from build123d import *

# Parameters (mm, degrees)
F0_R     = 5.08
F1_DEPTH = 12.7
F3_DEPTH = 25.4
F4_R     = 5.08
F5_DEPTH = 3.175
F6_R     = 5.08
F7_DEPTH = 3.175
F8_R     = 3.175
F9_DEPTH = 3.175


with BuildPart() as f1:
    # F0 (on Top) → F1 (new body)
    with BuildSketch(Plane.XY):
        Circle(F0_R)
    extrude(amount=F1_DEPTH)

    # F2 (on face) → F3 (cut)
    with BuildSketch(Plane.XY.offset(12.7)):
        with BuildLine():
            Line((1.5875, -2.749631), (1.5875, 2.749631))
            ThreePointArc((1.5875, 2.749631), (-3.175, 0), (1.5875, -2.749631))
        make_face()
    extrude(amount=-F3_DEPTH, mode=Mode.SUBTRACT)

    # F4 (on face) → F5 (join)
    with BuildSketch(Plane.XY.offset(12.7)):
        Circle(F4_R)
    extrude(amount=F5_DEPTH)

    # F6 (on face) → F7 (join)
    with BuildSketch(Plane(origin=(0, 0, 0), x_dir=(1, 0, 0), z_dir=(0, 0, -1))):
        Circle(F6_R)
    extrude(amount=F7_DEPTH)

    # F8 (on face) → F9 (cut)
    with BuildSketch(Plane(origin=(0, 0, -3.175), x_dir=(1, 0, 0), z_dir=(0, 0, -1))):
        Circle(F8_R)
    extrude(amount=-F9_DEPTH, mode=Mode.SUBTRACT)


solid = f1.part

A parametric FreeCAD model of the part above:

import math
import FreeCAD as App
import Part
import Sketcher
Q = App.Units.Quantity

doc = App.newDocument("Part")
params = doc.addObject("Spreadsheet::Sheet", "Params")
for row, (alias, value) in enumerate([
    ("sketch1_diameter", "0.4 in"),
    ("pad1_length", "0.5 in"),
    ("sketch2_radius", "0.125 in"),
    ("pocket1_length", "1 in"),
    ("sketch3_diameter", "0.4 in"),
    ("pad2_length", "0.125 in"),
    ("sketch4_diameter", "0.4 in"),
    ("pad3_length", "0.125 in"),
    ("sketch5_diameter", "0.25 in"),
    ("pocket2_length", "0.125 in"),
], start=1):
    params.set(f"A{row}", alias)
    params.set(f"B{row}", "=" + value)
    params.setAlias(f"B{row}", alias)

body = doc.addObject("PartDesign::Body", "Body")

# Sketch on XY plane
sketch1 = body.newObject("Sketcher::SketchObject", "Sketch")
sketch1.AttachmentSupport = (doc.getObject("XY_Plane"), [""])
sketch1.MapMode = "FlatFace"
sketch1.addGeometry(Part.Circle(App.Vector(0, 0, 0), App.Vector(0, 0, 1), 5), False)
sketch1.addConstraint(Sketcher.Constraint("Coincident", 0, 3, -1, 1))
sketch1.addConstraint(Sketcher.Constraint("Diameter", 0, Q("0.4 in")))
sketch1.setExpression("Constraints[1]", "Params.sketch1_diameter")
pad1 = body.newObject("PartDesign::Pad", "Pad")
pad1.Profile = sketch1
pad1.setExpression("Length", "Params.pad1_length")

# Sketch on XY plane
sketch2 = body.newObject("Sketcher::SketchObject", "Sketch001")
sketch2.AttachmentSupport = (doc.getObject("XY_Plane"), [""])
sketch2.MapMode = "FlatFace"
sketch2.AttachmentOffset = App.Placement(App.Vector(0, 0, 0.5 * 25.4), App.Rotation())
sketch2.addGeometry(Part.LineSegment(App.Vector(1.6, -2.7, 0), App.Vector(1.6, 2.7, 0)), False)
sketch2.addGeometry(Part.ArcOfCircle(Part.Circle(App.Vector(0, 0, 0), App.Vector(0, 0, 1), 3.2), math.radians(60), math.radians(300)), False)
sketch2.addConstraint(Sketcher.Constraint("Coincident", 0, 1, 1, 2))
sketch2.addConstraint(Sketcher.Constraint("Coincident", 1, 1, 0, 2))
sketch2.addConstraint(Sketcher.Constraint("Vertical", 0))
sketch2.addConstraint(Sketcher.Constraint("Coincident", 1, 3, -1, 1))
sketch2.addConstraint(Sketcher.Constraint("Radius", 1, Q("0.125 in")))
sketch2.addConstraint(Sketcher.Constraint("DistanceX", -1, 1, 0, 1, Q("0.0625 in")))
sketch2.setExpression("Constraints[4]", "Params.sketch2_radius")
pocket1 = body.newObject("PartDesign::Pocket", "Pocket")
pocket1.Profile = sketch2
pocket1.setExpression("Length", "Params.pocket1_length")

# Sketch on XY plane
sketch3 = body.newObject("Sketcher::SketchObject", "Sketch002")
sketch3.AttachmentSupport = (doc.getObject("XY_Plane"), [""])
sketch3.MapMode = "FlatFace"
sketch3.AttachmentOffset = App.Placement(App.Vector(0, 0, 0.5 * 25.4), App.Rotation())
sketch3.addGeometry(Part.Circle(App.Vector(0, 0, 0), App.Vector(0, 0, 1), 5), False)
sketch3.addConstraint(Sketcher.Constraint("Coincident", 0, 3, -1, 1))
sketch3.addConstraint(Sketcher.Constraint("Diameter", 0, Q("0.4 in")))
sketch3.setExpression("Constraints[1]", "Params.sketch3_diameter")
pad2 = body.newObject("PartDesign::Pad", "Pad001")
pad2.Profile = sketch3
pad2.setExpression("Length", "Params.pad2_length")

# Sketch on XY plane
sketch4 = body.newObject("Sketcher::SketchObject", "Sketch003")
sketch4.AttachmentSupport = (doc.getObject("XY_Plane"), [""])
sketch4.MapMode = "FlatFace"
sketch4.addGeometry(Part.Circle(App.Vector(0, 0, 0), App.Vector(0, 0, 1), 5), False)
sketch4.addConstraint(Sketcher.Constraint("Coincident", 0, 3, -1, 1))
sketch4.addConstraint(Sketcher.Constraint("Diameter", 0, Q("0.4 in")))
sketch4.setExpression("Constraints[1]", "Params.sketch4_diameter")
pad3 = body.newObject("PartDesign::Pad", "Pad002")
pad3.Profile = sketch4
pad3.setExpression("Length", "Params.pad3_length")
pad3.Reversed = True

# Sketch on XY plane
sketch5 = body.newObject("Sketcher::SketchObject", "Sketch004")
sketch5.AttachmentSupport = (doc.getObject("XY_Plane"), [""])
sketch5.MapMode = "FlatFace"
sketch5.AttachmentOffset = App.Placement(App.Vector(0, 0, -0.125 * 25.4), App.Rotation())
sketch5.addGeometry(Part.Circle(App.Vector(0, 0, 0), App.Vector(0, 0, 1), 3.2), False)
sketch5.addConstraint(Sketcher.Constraint("Coincident", 0, 3, -1, 1))
sketch5.addConstraint(Sketcher.Constraint("Diameter", 0, Q("0.25 in")))
sketch5.setExpression("Constraints[1]", "Params.sketch5_diameter")
pocket2 = body.newObject("PartDesign::Pocket", "Pocket001")
pocket2.Profile = sketch5
pocket2.setExpression("Length", "Params.pocket2_length")
pocket2.Reversed = True

doc.recompute()
